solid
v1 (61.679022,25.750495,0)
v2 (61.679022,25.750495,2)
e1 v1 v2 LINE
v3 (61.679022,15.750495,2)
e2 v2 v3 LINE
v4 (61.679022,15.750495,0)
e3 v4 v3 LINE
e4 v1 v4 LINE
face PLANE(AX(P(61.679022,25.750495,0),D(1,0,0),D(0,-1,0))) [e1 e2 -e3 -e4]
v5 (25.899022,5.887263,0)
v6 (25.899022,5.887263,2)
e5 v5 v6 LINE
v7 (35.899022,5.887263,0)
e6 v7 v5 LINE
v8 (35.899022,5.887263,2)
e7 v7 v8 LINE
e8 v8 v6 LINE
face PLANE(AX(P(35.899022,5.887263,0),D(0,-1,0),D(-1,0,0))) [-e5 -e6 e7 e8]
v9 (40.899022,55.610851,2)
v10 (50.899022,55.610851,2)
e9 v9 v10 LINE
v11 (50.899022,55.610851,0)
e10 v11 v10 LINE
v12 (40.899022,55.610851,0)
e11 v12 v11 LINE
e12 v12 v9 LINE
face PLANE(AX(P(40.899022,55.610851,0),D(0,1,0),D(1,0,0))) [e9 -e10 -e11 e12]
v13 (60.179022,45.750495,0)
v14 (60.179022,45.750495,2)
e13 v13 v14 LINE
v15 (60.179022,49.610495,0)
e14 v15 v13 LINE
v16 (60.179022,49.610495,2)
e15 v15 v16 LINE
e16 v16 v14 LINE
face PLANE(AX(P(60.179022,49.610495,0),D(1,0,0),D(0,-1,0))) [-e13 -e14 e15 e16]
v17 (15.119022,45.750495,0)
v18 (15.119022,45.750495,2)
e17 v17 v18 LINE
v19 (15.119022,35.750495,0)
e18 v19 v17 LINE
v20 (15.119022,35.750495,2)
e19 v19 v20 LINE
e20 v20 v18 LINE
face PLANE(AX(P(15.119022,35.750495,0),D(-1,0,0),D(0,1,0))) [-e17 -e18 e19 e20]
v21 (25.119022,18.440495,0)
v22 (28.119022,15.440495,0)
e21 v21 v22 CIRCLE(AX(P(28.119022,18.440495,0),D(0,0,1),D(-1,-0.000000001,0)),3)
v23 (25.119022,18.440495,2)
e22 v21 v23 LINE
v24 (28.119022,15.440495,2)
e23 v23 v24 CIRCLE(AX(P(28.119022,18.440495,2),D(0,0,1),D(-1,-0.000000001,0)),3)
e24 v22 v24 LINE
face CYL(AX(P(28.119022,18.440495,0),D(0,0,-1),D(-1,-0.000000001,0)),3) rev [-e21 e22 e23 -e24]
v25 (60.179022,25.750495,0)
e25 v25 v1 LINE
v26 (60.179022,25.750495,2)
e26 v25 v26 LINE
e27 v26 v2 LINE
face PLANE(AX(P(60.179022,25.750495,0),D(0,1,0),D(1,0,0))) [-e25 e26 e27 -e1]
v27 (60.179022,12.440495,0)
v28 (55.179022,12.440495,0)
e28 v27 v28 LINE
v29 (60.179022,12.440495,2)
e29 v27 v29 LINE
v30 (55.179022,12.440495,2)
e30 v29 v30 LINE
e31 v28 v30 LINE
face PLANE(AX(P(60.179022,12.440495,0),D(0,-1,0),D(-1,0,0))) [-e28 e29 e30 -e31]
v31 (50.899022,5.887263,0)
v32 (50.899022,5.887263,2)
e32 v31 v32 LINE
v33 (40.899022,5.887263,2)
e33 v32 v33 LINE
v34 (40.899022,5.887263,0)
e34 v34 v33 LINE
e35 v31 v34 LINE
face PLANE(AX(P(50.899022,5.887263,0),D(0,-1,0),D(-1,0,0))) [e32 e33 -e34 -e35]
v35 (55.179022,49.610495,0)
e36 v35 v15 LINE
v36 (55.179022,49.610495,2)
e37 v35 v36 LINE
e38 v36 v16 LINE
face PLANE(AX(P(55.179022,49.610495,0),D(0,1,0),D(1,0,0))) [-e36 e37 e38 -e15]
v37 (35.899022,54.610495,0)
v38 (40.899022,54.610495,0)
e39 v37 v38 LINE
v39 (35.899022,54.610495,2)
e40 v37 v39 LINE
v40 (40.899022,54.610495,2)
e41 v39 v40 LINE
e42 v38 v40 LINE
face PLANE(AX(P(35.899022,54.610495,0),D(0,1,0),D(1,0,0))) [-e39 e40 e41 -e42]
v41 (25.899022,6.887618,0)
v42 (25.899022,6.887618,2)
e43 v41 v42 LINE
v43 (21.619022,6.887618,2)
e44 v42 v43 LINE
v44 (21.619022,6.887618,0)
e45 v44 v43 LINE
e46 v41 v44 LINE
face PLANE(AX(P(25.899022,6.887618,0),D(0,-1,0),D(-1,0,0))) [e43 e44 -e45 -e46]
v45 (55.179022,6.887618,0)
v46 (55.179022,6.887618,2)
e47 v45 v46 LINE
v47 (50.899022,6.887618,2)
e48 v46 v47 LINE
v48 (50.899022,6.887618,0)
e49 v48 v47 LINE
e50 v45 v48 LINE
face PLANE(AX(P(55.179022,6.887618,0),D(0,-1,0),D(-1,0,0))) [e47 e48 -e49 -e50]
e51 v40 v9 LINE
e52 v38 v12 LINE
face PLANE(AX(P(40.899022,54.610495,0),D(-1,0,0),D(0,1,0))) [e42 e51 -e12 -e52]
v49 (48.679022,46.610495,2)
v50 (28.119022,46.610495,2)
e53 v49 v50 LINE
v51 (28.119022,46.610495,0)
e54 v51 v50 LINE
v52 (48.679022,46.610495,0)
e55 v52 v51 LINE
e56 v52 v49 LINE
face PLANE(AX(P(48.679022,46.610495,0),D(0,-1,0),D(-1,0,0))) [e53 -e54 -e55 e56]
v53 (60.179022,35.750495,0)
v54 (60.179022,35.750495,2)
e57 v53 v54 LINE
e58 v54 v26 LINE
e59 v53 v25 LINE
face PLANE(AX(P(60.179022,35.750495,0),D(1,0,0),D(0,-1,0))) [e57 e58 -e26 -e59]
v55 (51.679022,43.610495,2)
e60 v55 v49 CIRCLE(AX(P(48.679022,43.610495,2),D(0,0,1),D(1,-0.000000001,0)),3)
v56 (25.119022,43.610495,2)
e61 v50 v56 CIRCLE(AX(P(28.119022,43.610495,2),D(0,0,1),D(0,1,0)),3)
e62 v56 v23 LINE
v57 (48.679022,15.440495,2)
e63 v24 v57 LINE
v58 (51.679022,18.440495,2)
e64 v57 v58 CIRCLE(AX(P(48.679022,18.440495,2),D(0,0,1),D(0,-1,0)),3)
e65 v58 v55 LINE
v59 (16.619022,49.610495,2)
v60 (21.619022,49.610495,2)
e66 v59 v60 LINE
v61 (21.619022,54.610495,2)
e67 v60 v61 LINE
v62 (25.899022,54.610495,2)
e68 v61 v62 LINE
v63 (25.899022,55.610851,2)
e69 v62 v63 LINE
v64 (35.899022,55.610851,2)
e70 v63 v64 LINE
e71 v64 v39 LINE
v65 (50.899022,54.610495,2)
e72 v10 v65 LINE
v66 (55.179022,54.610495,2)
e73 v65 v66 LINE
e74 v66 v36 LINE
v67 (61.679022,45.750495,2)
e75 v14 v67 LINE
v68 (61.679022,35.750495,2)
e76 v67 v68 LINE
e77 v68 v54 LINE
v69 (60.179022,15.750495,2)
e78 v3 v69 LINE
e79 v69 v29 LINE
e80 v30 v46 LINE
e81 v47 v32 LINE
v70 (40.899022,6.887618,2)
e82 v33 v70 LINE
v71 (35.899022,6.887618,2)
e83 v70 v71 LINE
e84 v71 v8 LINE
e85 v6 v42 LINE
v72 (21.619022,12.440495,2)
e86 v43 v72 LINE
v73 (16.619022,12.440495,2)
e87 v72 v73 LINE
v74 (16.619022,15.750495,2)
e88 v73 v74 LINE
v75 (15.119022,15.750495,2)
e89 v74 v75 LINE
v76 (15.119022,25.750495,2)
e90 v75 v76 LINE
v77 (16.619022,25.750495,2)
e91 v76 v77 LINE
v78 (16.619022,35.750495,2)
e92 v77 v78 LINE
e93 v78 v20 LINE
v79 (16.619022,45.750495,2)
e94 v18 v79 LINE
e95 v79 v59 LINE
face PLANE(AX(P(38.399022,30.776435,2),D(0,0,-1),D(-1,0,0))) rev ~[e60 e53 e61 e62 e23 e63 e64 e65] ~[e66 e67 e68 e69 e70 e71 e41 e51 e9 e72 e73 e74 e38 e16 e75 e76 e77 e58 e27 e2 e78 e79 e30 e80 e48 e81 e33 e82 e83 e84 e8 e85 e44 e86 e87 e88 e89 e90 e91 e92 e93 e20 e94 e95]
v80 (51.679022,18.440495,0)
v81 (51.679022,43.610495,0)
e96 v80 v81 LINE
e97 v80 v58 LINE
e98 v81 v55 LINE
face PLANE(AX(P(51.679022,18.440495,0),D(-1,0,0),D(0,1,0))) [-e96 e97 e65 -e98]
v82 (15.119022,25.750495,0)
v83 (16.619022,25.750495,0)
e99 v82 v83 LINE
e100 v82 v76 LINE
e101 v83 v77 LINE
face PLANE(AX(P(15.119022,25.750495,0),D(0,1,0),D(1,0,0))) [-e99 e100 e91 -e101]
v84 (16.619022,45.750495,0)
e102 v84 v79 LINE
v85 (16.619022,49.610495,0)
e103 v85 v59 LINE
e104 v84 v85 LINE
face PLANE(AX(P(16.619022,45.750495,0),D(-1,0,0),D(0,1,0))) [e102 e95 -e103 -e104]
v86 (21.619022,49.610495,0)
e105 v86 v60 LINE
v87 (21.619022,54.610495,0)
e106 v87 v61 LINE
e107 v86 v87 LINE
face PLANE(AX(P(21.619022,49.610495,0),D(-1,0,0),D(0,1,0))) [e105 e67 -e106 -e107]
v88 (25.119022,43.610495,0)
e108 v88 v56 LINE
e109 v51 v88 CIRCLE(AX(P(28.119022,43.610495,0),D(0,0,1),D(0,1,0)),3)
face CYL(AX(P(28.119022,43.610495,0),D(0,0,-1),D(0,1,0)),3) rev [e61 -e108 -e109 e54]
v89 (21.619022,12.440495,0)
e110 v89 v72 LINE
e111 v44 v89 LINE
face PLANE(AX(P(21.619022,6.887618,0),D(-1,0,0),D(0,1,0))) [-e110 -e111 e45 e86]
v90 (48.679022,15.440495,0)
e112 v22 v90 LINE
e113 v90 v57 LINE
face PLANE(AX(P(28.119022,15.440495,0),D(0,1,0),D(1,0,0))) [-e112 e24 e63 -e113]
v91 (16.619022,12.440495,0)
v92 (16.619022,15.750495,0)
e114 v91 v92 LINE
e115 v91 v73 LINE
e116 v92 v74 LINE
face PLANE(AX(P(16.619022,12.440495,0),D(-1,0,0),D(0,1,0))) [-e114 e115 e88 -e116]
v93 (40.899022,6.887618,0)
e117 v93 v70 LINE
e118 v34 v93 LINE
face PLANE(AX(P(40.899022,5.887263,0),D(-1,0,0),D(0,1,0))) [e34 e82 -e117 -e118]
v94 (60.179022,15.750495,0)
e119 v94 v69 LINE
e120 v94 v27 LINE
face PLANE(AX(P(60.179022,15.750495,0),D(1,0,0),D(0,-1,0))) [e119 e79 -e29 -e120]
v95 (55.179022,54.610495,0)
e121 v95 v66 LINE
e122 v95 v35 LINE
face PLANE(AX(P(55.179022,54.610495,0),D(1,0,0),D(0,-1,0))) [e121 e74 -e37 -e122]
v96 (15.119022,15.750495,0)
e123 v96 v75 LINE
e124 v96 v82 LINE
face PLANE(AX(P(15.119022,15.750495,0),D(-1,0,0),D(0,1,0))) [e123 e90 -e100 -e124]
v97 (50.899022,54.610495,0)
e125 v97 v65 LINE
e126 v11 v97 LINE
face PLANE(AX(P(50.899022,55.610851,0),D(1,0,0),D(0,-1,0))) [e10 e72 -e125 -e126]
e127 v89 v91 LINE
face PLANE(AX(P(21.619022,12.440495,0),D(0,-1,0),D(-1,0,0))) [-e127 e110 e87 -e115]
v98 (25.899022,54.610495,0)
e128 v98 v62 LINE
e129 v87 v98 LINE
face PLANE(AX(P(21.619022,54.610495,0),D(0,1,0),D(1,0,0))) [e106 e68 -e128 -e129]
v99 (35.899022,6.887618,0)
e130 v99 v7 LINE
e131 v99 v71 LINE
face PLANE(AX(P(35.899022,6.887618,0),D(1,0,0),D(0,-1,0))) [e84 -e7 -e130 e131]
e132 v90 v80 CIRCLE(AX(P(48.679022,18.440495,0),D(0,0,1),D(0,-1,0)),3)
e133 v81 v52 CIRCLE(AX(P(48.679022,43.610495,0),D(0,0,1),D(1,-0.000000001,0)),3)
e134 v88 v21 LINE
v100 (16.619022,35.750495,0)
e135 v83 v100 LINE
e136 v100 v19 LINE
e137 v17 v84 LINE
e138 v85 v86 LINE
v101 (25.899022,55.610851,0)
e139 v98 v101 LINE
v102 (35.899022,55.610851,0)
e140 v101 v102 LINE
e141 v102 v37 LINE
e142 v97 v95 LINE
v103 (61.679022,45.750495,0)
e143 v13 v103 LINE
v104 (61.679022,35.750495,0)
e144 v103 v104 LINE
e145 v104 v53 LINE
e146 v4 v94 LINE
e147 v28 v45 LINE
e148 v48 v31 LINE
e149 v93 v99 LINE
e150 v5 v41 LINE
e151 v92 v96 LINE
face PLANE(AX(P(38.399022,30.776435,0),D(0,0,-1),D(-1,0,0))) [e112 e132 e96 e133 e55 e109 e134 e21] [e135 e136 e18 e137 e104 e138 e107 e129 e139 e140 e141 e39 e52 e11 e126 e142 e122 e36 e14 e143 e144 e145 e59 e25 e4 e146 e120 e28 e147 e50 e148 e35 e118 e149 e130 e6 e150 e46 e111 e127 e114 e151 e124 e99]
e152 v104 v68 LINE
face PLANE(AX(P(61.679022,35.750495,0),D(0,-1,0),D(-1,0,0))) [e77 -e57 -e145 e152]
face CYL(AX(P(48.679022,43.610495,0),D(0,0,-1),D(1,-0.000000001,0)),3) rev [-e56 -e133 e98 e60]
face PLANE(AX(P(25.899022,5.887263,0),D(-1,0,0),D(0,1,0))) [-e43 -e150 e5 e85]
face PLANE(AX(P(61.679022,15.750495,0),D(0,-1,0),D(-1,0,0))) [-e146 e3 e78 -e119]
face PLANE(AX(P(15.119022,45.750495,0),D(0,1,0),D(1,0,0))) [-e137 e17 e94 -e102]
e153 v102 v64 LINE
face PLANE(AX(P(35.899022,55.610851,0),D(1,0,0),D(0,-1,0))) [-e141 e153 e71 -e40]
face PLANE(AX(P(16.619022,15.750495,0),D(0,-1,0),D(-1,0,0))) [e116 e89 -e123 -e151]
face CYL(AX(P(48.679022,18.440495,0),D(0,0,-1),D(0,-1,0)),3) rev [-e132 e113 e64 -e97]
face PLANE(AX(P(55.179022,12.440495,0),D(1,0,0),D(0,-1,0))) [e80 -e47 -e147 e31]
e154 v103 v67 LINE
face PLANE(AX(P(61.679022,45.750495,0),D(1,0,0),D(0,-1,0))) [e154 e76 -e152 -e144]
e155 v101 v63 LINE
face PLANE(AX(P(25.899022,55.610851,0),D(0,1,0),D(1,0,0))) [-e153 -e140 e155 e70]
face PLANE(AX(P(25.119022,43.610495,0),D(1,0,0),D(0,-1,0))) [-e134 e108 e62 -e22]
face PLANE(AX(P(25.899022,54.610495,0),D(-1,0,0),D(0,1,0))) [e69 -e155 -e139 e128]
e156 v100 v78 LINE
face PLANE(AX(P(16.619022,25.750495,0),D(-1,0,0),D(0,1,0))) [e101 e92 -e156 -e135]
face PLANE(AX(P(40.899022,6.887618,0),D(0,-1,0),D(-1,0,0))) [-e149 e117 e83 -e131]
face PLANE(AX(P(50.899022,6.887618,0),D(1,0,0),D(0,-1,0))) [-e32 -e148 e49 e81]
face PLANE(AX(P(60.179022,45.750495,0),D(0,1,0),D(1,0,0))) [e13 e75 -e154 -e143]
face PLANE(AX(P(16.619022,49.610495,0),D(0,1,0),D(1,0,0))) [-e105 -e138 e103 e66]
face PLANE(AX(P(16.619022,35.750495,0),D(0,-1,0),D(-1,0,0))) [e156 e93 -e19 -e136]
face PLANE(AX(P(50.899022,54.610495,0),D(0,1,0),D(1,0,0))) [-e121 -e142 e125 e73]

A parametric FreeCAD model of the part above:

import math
import FreeCAD as App
import Part
import Sketcher

V = App.Vector


def add_polygon(sketch, points):
    """Adds a closed chain of lines whose ends are joined by coincident constraints."""
    first, n = sketch.GeometryCount, len(points)
    for a, b in zip(points, points[1:] + points[:1]):
        sketch.addGeometry(Part.LineSegment(App.Vector(*a, 0), App.Vector(*b, 0)), False)
    for i in range(n):
        sketch.addConstraint(Sketcher.Constraint("Coincident", first + i, 2, first + (i + 1) % n, 1))

doc = App.newDocument("Part")
body = doc.addObject("PartDesign::Body", "Body")

sketch1 = doc.addObject("Sketcher::SketchObject", "Sketch")
body.addObject(sketch1)
sketch1.AttachmentSupport = (doc.XY_Plane, [""])
sketch1.MapMode = "FlatFace"
add_polygon(sketch1, [(25.9, 54.6), (21.6, 54.6), (21.6, 49.6), (16.6, 49.6), (16.6, 45.8), (15.1, 45.8), (15.1, 35.8), (16.6, 35.8), (16.6, 25.8), (15.1, 25.8), (15.1, 15.8), (16.6, 15.8), (16.6, 12.4), (21.6, 12.4), (21.6, 6.9), (25.9, 6.9), (25.9, 5.9), (35.9, 5.9), (35.9, 6.9), (40.9, 6.9), (40.9, 5.9), (50.9, 5.9), (50.9, 6.9), (55.2, 6.9), (55.2, 12.4), (60.2, 12.4), (60.2, 15.8), (61.7, 15.8), (61.7, 25.8), (60.2, 25.8), (60.2, 35.8), (61.7, 35.8), (61.7, 45.8), (60.2, 45.8), (60.2, 49.6), (55.2, 49.6), (55.2, 54.6), (50.9, 54.6), (50.9, 55.6), (40.9, 55.6), (40.9, 54.6), (35.9, 54.6), (35.9, 55.6), (25.9, 55.6)])
sketch1.addGeometry(Part.ArcOfCircle(Part.Circle(V(48.7, 43.6, 0), V(0, 0, 1), 3), math.radians(0), math.radians(90)), False)
sketch1.addGeometry(Part.LineSegment(V(51.7, 43.6, 0), V(51.7, 18.4, 0)), False)
sketch1.addGeometry(Part.ArcOfCircle(Part.Circle(V(48.7, 18.4, 0), V(0, 0, 1), 3), math.radians(-90), math.radians(0)), False)
sketch1.addGeometry(Part.LineSegment(V(48.7, 15.4, 0), V(28.1, 15.4, 0)), False)
sketch1.addGeometry(Part.ArcOfCircle(Part.Circle(V(28.1, 18.4, 0), V(0, 0, 1), 3), math.radians(-180), math.radians(-90)), False)
sketch1.addGeometry(Part.LineSegment(V(25.1, 18.4, 0), V(25.1, 43.6, 0)), False)
sketch1.addGeometry(Part.ArcOfCircle(Part.Circle(V(28.1, 43.6, 0), V(0, 0, 1), 3), math.radians(90), math.radians(180)), False)
sketch1.addGeometry(Part.LineSegment(V(28.1, 46.6, 0), V(48.7, 46.6, 0)), False)
sketch1.addConstraint(Sketcher.Constraint("Tangent", 44, 1, 45, 1))
sketch1.addConstraint(Sketcher.Constraint("Tangent", 45, 2, 46, 2))
sketch1.addConstraint(Sketcher.Constraint("Tangent", 46, 1, 47, 1))
sketch1.addConstraint(Sketcher.Constraint("Tangent", 47, 2, 48, 2))
sketch1.addConstraint(Sketcher.Constraint("Tangent", 48, 1, 49, 1))
sketch1.addConstraint(Sketcher.Constraint("Tangent", 49, 2, 50, 2))
sketch1.addConstraint(Sketcher.Constraint("Tangent", 50, 1, 51, 1))
sketch1.addConstraint(Sketcher.Constraint("Tangent", 51, 2, 44, 2))
sketch1.addConstraint(Sketcher.Constraint("Horizontal", 0))
sketch1.addConstraint(Sketcher.Constraint("Vertical", 1))
sketch1.addConstraint(Sketcher.Constraint("Horizontal", 2))
sketch1.addConstraint(Sketcher.Constraint("Vertical", 3))
sketch1.addConstraint(Sketcher.Constraint("Horizontal", 4))
sketch1.addConstraint(Sketcher.Constraint("Vertical", 5))
sketch1.addConstraint(Sketcher.Constraint("Horizontal", 6))
sketch1.addConstraint(Sketcher.Constraint("Vertical", 7))
sketch1.addConstraint(Sketcher.Constraint("Horizontal", 8))
sketch1.addConstraint(Sketcher.Constraint("Vertical", 9))
sketch1.addConstraint(Sketcher.Constraint("Horizontal", 10))
sketch1.addConstraint(Sketcher.Constraint("Vertical", 11))
sketch1.addConstraint(Sketcher.Constraint("Horizontal", 12))
sketch1.addConstraint(Sketcher.Constraint("Vertical", 13))
sketch1.addConstraint(Sketcher.Constraint("Horizontal", 14))
sketch1.addConstraint(Sketcher.Constraint("Vertical", 15))
sketch1.addConstraint(Sketcher.Constraint("Horizontal", 16))
sketch1.addConstraint(Sketcher.Constraint("Vertical", 17))
sketch1.addConstraint(Sketcher.Constraint("Horizontal", 18))
sketch1.addConstraint(Sketcher.Constraint("Vertical", 19))
sketch1.addConstraint(Sketcher.Constraint("Horizontal", 20))
sketch1.addConstraint(Sketcher.Constraint("Vertical", 21))
sketch1.addConstraint(Sketcher.Constraint("Horizontal", 22))
sketch1.addConstraint(Sketcher.Constraint("Vertical", 23))
sketch1.addConstraint(Sketcher.Constraint("Horizontal", 24))
sketch1.addConstraint(Sketcher.Constraint("Vertical", 25))
sketch1.addConstraint(Sketcher.Constraint("Horizontal", 26))
sketch1.addConstraint(Sketcher.Constraint("Vertical", 27))
sketch1.addConstraint(Sketcher.Constraint("Horizontal", 28))
sketch1.addConstraint(Sketcher.Constraint("Vertical", 29))
sketch1.addConstraint(Sketcher.Constraint("Horizontal", 30))
sketch1.addConstraint(Sketcher.Constraint("Vertical", 31))
sketch1.addConstraint(Sketcher.Constraint("Horizontal", 32))
sketch1.addConstraint(Sketcher.Constraint("Vertical", 33))
sketch1.addConstraint(Sketcher.Constraint("Horizontal", 34))
sketch1.addConstraint(Sketcher.Constraint("Vertical", 35))
sketch1.addConstraint(Sketcher.Constraint("Horizontal", 36))
sketch1.addConstraint(Sketcher.Constraint("Vertical", 37))
sketch1.addConstraint(Sketcher.Constraint("Horizontal", 38))
sketch1.addConstraint(Sketcher.Constraint("Vertical", 39))
sketch1.addConstraint(Sketcher.Constraint("Horizontal", 40))
sketch1.addConstraint(Sketcher.Constraint("Vertical", 41))
sketch1.addConstraint(Sketcher.Constraint("Horizontal", 42))
sketch1.addConstraint(Sketcher.Constraint("Vertical", 43))
sketch1.addConstraint(Sketcher.Constraint("Vertical", 45))
sketch1.addConstraint(Sketcher.Constraint("Horizontal", 47))
sketch1.addConstraint(Sketcher.Constraint("Vertical", 49))
sketch1.addConstraint(Sketcher.Constraint("Horizontal", 51))
sketch1.addConstraint(Sketcher.Constraint("Equal", 44, 46))
sketch1.addConstraint(Sketcher.Constraint("Equal", 46, 48))
sketch1.addConstraint(Sketcher.Constraint("Equal", 48, 50))
sketch1.addConstraint(Sketcher.Constraint("Horizontal", 14, 2, 17, 2))
sketch1.addConstraint(Sketcher.Constraint("Horizontal", 16, 2, 19, 2))
sketch1.addConstraint(Sketcher.Constraint("Horizontal", 18, 2, 21, 2))
sketch1.addConstraint(Sketcher.Constraint("Horizontal", 12, 2, 23, 2))
sketch1.addConstraint(Sketcher.Constraint("Horizontal", 10, 2, 25, 2))
sketch1.addConstraint(Sketcher.Constraint("Horizontal", 8, 2, 27, 2))
sketch1.addConstraint(Sketcher.Constraint("Horizontal", 6, 2, 29, 2))
sketch1.addConstraint(Sketcher.Constraint("Horizontal", 4, 2, 31, 2))
sketch1.addConstraint(Sketcher.Constraint("Horizontal", 2, 2, 33, 2))
sketch1.addConstraint(Sketcher.Constraint("Horizontal", 0, 2, 35, 2))
sketch1.addConstraint(Sketcher.Constraint("Horizontal", 36, 2, 39, 2))
sketch1.addConstraint(Sketcher.Constraint("Horizontal", 38, 2, 41, 2))
sketch1.addConstraint(Sketcher.Constraint("Vertical", 3, 2, 6, 2))
sketch1.addConstraint(Sketcher.Constraint("Vertical", 5, 2, 8, 2))
sketch1.addConstraint(Sketcher.Constraint("Vertical", 7, 2, 10, 2))
sketch1.addConstraint(Sketcher.Constraint("Vertical", 1, 2, 12, 2))
sketch1.addConstraint(Sketcher.Constraint("Vertical", 25, 2, 28, 2))
sketch1.addConstraint(Sketcher.Constraint("Vertical", 27, 2, 30, 2))
sketch1.addConstraint(Sketcher.Constraint("Vertical", 29, 2, 32, 2))
sketch1.addConstraint(Sketcher.Constraint("Vertical", 23, 2, 34, 2))
sketch1.addConstraint(Sketcher.Constraint("Vertical", 21, 2, 36, 2))
sketch1.addConstraint(Sketcher.Constraint("Vertical", 19, 2, 38, 2))
sketch1.addConstraint(Sketcher.Constraint("Vertical", 17, 2, 40, 2))
sketch1.addConstraint(Sketcher.Constraint("Vertical", 15, 2, 42, 2))
sketch1.addConstraint(Sketcher.Constraint("Equal", 12, 18))
sketch1.addConstraint(Sketcher.Constraint("Equal", 16, 20))
sketch1.addConstraint(Sketcher.Constraint("Equal", 14, 22))
sketch1.addConstraint(Sketcher.Constraint("Equal", 18, 24))
sketch1.addConstraint(Sketcher.Constraint("Equal", 10, 26))
sketch1.addConstraint(Sketcher.Constraint("Equal", 40, 1))
sketch1.addConstraint(Sketcher.Constraint("Equal", 42, 5))
sketch1.addConstraint(Sketcher.Constraint("Equal", 5, 7))
sketch1.addConstraint(Sketcher.Constraint("Equal", 7, 9))
sketch1.addConstraint(Sketcher.Constraint("Equal", 21, 37))
sketch1.addConstraint(Sketcher.Constraint("Radius", 44, 3.0))
sketch1.addConstraint(Sketcher.Constraint("DistanceX", 2, 2, 2, 1, 5.0))
sketch1.addConstraint(Sketcher.Constraint("DistanceX", 16, 1, 16, 2, 10.0))
sketch1.addConstraint(Sketcher.Constraint("DistanceX", 4, 2, 4, 1, 1.5))
sketch1.addConstraint(Sketcher.Constraint("DistanceY", 50, 3, 0, 2, 11.0))
sketch1.addConstraint(Sketcher.Constraint("DistanceX", 4, 2, 50, 3, 13.0))
sketch1.addConstraint(Sketcher.Constraint("DistanceY", 11, 2, 48, 3, 6.0))
sketch1.addConstraint(Sketcher.Constraint("DistanceX", 46, 3, 26, 2, 13.0))
sketch1.addConstraint(Sketcher.Constraint("DistanceX", 0, 2, 0, 1, 4.28))
sketch1.addConstraint(Sketcher.Constraint("DistanceY", 3, 2, 3, 1, 3.86))
sketch1.addConstraint(Sketcher.Constraint("DistanceY", 11, 2, 11, 1, 3.31))
sketch1.addConstraint(Sketcher.Constraint("DistanceY", 13, 2, 13, 1, 5.552877))
sketch1.addConstraint(Sketcher.Constraint("DistanceY", 15, 2, 15, 1, 1.000356))
sketch1.addConstraint(Sketcher.Constraint("DistanceX", -1, 1, 44, 3, 48.679022))
sketch1.addConstraint(Sketcher.Constraint("DistanceY", -1, 1, 13, 2, 6.887618))
pad1 = doc.addObject("PartDesign::Pad", "Pad")
body.addObject(pad1)
pad1.Profile = sketch1
pad1.Length = 2

doc.recompute()
